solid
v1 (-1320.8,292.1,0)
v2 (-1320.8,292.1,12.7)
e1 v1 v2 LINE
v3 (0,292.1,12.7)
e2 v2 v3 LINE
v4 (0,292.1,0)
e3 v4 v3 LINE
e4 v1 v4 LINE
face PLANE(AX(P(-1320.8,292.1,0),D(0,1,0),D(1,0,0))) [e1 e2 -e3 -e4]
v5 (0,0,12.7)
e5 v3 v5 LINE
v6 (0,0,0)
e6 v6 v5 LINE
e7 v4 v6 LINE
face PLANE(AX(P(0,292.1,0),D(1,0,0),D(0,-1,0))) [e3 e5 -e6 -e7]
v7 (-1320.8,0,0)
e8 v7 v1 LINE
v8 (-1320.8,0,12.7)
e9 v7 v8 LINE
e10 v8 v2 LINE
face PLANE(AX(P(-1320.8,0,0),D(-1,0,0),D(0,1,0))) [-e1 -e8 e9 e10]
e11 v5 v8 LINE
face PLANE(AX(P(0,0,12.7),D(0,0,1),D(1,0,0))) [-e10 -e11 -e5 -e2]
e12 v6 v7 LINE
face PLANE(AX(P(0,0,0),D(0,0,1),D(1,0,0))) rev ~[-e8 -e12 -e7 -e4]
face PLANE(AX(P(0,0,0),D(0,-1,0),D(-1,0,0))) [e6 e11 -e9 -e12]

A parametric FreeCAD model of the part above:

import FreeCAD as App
import Part
import Sketcher
from FreeCAD import Vector
Q = App.Units.Quantity


def add_polygon(sketch, points):
    """Adds a closed chain of lines whose ends are joined by coincident constraints."""
    first, n = sketch.GeometryCount, len(points)
    for a, b in zip(points, points[1:] + points[:1]):
        sketch.addGeometry(Part.LineSegment(App.Vector(*a, 0), App.Vector(*b, 0)), False)
    for i in range(n):
        sketch.addConstraint(Sketcher.Constraint("Coincident", first + i, 2, first + (i + 1) % n, 1))

doc = App.newDocument("Part")
params = doc.addObject("Spreadsheet::Sheet", "Params")
for row, (alias, value) in enumerate([
    ("sketch1_width", "52 in"),
    ("sketch1_height", "11.5 in"),
    ("pad1_length", "0.5 in"),
], start=1):
    params.set(f"A{row}", alias)
    params.set(f"B{row}", "=" + value)
    params.setAlias(f"B{row}", alias)

body = doc.addObject("PartDesign::Body", "Body")

sketch1 = body.newObject("Sketcher::SketchObject", "Sketch")
sketch1.AttachmentSupport = (doc.getObject("XY_Plane"), [""])
sketch1.MapMode = "FlatFace"
add_polygon(sketch1, [(-1321, 0), (0, 0), (0, 292), (-1321, 292)])
sketch1.addConstraint([
    Sketcher.Constraint("Horizontal", 0),
    Sketcher.Constraint("Vertical", 1),
    Sketcher.Constraint("Horizontal", 2),
    Sketcher.Constraint("Vertical", 3),
    Sketcher.Constraint("Coincident", 0, 2, -1, 1),
    Sketcher.Constraint("DistanceX", 0, 1, 0, 2, Q("52 in")),
    Sketcher.Constraint("DistanceY", 1, 1, 1, 2, Q("11.5 in")),
])
sketch1.setExpression("Constraints[9]", "Params.sketch1_width")
sketch1.setExpression("Constraints[10]", "Params.sketch1_height")
pad1 = body.newObject("PartDesign::Pad", "Pad")
pad1.Profile = sketch1
pad1.setExpression("Length", "Params.pad1_length")

doc.recompute()
